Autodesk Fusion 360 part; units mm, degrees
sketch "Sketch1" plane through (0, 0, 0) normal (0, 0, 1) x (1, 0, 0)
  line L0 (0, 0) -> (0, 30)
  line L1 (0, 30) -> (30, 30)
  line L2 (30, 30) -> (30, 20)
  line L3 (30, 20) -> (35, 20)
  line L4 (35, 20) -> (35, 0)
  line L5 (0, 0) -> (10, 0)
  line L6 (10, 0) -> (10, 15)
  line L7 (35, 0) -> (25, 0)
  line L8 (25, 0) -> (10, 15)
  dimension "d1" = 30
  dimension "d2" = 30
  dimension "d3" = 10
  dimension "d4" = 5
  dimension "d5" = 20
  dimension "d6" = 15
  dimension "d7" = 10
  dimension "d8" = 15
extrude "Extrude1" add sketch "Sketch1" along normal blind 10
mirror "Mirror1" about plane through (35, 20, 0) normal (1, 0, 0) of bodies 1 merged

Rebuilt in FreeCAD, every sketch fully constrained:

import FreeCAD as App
import Part
import Sketcher

doc = App.newDocument("Part")
body = doc.addObject("PartDesign::Body", "Body")

# Sketch on XY plane
sketch1 = doc.addObject("Sketcher::SketchObject", "Sketch")
body.addObject(sketch1)
sketch1.AttachmentSupport = (doc.XY_Plane, [""])
sketch1.MapMode = "FlatFace"
sketch1.addGeometry(Part.LineSegment(App.Vector(0, 30, 0), App.Vector(0, 0, 0)), False)
sketch1.addGeometry(Part.LineSegment(App.Vector(0, 0, 0), App.Vector(10, 0, 0)), False)
sketch1.addGeometry(Part.LineSegment(App.Vector(10, 0, 0), App.Vector(10, 15, 0)), False)
sketch1.addGeometry(Part.LineSegment(App.Vector(10, 15, 0), App.Vector(25, 0, 0)), False)
sketch1.addGeometry(Part.LineSegment(App.Vector(25, 0, 0), App.Vector(35, 0, 0)), False)
sketch1.addGeometry(Part.LineSegment(App.Vector(35, 0, 0), App.Vector(35, 20, 0)), False)
sketch1.addGeometry(Part.LineSegment(App.Vector(35, 20, 0), App.Vector(30, 20, 0)), False)
sketch1.addGeometry(Part.LineSegment(App.Vector(30, 20, 0), App.Vector(30, 30, 0)), False)
sketch1.addGeometry(Part.LineSegment(App.Vector(30, 30, 0), App.Vector(0, 30, 0)), False)
sketch1.addConstraint(Sketcher.Constraint("Coincident", 0, 2, 1, 1))
sketch1.addConstraint(Sketcher.Constraint("Coincident", 1, 2, 2, 1))
sketch1.addConstraint(Sketcher.Constraint("Coincident", 2, 2, 3, 1))
sketch1.addConstraint(Sketcher.Constraint("Coincident", 3, 2, 4, 1))
sketch1.addConstraint(Sketcher.Constraint("Coincident", 4, 2, 5, 1))
sketch1.addConstraint(Sketcher.Constraint("Coincident", 5, 2, 6, 1))
sketch1.addConstraint(Sketcher.Constraint("Coincident", 6, 2, 7, 1))
sketch1.addConstraint(Sketcher.Constraint("Coincident", 7, 2, 8, 1))
sketch1.addConstraint(Sketcher.Constraint("Coincident", 8, 2, 0, 1))
sketch1.addConstraint(Sketcher.Constraint("Vertical", 0))
sketch1.addConstraint(Sketcher.Constraint("Horizontal", 1))
sketch1.addConstraint(Sketcher.Constraint("Vertical", 2))
sketch1.addConstraint(Sketcher.Constraint("Horizontal", 4))
sketch1.addConstraint(Sketcher.Constraint("Vertical", 5))
sketch1.addConstraint(Sketcher.Constraint("Horizontal", 6))
sketch1.addConstraint(Sketcher.Constraint("Vertical", 7))
sketch1.addConstraint(Sketcher.Constraint("Horizontal", 8))
sketch1.addConstraint(Sketcher.Constraint("Coincident", 0, 2, -1, 1))
sketch1.addConstraint(Sketcher.Constraint("PointOnObject", 3, 2, -1))
sketch1.addConstraint(Sketcher.Constraint("Equal", 1, 4))
sketch1.addConstraint(Sketcher.Constraint("Equal", 8, 0))
sketch1.addConstraint(Sketcher.Constraint("Equal", 4, 7))
sketch1.addConstraint(Sketcher.Constraint("DistanceX", 1, 1, 1, 2, 10.0))
sketch1.addConstraint(Sketcher.Constraint("DistanceX", 6, 2, 6, 1, 5.0))
sketch1.addConstraint(Sketcher.Constraint("DistanceX", 8, 2, 8, 1, 30.0))
sketch1.addConstraint(Sketcher.Constraint("DistanceY", 2, 1, 2, 2, 15.0))
pad1 = doc.addObject("PartDesign::Pad", "Pad")
body.addObject(pad1)
pad1.Profile = sketch1
pad1.Length = 10
doc.recompute()

datumplane = doc.addObject("PartDesign::Plane", "DatumPlane")
body.addObject(datumplane)
datumplane.AttachmentSupport = (doc.YZ_Plane, [""])
datumplane.MapMode = "FlatFace"
datumplane.AttachmentOffset = App.Placement(App.Vector(0, 0, 35), App.Rotation())
mirrored = doc.addObject("PartDesign::Mirrored", "Mirrored")
body.addObject(mirrored)
mirrored.TransformMode = "Transform body"
mirrored.MirrorPlane = (datumplane, [""])
body.Tip = mirrored

doc.recompute()
